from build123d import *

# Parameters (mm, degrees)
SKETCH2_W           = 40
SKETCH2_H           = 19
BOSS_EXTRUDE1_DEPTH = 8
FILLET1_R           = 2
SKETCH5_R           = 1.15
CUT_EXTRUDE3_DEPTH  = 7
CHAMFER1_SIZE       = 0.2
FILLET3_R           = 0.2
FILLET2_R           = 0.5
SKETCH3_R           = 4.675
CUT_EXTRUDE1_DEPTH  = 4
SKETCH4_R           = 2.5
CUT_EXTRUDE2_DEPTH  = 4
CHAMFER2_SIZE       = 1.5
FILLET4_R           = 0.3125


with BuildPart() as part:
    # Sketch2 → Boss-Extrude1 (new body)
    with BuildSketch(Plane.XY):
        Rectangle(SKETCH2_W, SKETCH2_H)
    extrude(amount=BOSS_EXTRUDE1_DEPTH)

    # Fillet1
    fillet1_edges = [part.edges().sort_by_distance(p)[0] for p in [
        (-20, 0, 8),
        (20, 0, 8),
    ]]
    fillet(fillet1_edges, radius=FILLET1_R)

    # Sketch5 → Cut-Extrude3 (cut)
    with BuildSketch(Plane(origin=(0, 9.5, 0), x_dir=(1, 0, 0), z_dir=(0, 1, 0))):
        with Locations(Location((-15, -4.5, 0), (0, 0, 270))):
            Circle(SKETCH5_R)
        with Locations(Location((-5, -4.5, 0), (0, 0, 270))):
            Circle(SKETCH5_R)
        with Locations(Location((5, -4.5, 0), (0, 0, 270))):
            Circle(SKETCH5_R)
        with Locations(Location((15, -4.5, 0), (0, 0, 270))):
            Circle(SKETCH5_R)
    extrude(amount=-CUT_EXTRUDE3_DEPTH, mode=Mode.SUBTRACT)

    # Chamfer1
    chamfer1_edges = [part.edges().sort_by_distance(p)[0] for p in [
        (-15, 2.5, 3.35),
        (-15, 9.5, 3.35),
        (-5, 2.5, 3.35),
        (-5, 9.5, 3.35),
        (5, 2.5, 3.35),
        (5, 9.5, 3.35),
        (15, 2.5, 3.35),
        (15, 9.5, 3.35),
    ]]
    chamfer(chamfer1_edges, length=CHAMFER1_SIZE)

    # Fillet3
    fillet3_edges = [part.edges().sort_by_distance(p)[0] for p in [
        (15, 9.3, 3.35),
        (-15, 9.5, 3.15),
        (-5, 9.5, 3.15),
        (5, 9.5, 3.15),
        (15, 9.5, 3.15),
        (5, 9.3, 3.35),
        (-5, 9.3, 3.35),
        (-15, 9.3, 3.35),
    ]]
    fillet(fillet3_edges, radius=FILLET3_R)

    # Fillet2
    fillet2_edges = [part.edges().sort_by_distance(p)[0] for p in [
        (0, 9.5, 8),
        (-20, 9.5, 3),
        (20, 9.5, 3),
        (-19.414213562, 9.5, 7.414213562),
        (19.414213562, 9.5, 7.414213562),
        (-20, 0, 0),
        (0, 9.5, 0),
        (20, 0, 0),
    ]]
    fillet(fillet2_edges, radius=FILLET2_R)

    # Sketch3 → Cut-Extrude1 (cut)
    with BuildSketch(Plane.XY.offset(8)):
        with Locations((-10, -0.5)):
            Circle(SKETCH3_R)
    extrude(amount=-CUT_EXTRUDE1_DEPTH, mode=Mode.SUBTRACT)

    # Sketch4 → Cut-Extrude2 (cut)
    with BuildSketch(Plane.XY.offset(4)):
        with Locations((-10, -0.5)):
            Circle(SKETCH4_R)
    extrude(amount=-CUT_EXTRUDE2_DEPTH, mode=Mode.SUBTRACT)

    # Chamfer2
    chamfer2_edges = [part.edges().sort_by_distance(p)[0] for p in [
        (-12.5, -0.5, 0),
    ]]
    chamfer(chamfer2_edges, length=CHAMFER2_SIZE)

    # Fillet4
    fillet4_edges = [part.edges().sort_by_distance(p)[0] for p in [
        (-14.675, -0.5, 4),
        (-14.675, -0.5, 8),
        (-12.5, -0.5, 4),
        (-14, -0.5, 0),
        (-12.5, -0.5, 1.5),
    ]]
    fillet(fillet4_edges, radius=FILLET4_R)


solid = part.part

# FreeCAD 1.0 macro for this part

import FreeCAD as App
import Part
import Sketcher

V = App.Vector
Q = App.Units.Quantity


def edges_at(feature, points):
    """Names of the edges that pass closest to the given points."""
    edges = feature.Shape.Edges
    near = lambda p: min(range(len(edges)), key=lambda i: edges[i].distToShape(Part.Vertex(*p))[0])
    return sorted({f"Edge{near(p) + 1}" for p in points})

doc = App.newDocument("Part")
body = doc.addObject("PartDesign::Body", "Body")

sketch1 = doc.addObject("Sketcher::SketchObject", "Sketch")
body.addObject(sketch1)
sketch1.AttachmentSupport = (doc.XY_Plane, [""])
sketch1.MapMode = "FlatFace"
sketch1.addGeometry(Part.LineSegment(V(-20, 10, 0), V(-20, -10, 0)), False)
sketch1.addGeometry(Part.LineSegment(V(-20, -10, 0), V(20, -10, 0)), False)
sketch1.addGeometry(Part.LineSegment(V(20, -10, 0), V(20, 10, 0)), False)
sketch1.addGeometry(Part.LineSegment(V(20, 10, 0), V(-20, 10, 0)), False)
sketch1.addConstraint(Sketcher.Constraint("Coincident", 0, 2, 1, 1))
sketch1.addConstraint(Sketcher.Constraint("Coincident", 1, 2, 2, 1))
sketch1.addConstraint(Sketcher.Constraint("Coincident", 2, 2, 3, 1))
sketch1.addConstraint(Sketcher.Constraint("Coincident", 3, 2, 0, 1))
sketch1.addConstraint(Sketcher.Constraint("Vertical", 0))
sketch1.addConstraint(Sketcher.Constraint("Horizontal", 1))
sketch1.addConstraint(Sketcher.Constraint("Vertical", 2))
sketch1.addConstraint(Sketcher.Constraint("Horizontal", 3))
sketch1.addConstraint(Sketcher.Constraint("Symmetric", 0, 2, 2, 2, -1, 1))
sketch1.addConstraint(Sketcher.Constraint("DistanceX", 1, 1, 1, 2, Q("40 mm")))
sketch1.addConstraint(Sketcher.Constraint("DistanceY", 0, 2, 0, 1, Q("19 mm")))
pad1 = doc.addObject("PartDesign::Pad", "Pad")
body.addObject(pad1)
pad1.Profile = sketch1
pad1.Length = 8
doc.recompute()

fillet = doc.addObject("PartDesign::Fillet", "Fillet")
body.addObject(fillet)
fillet.Base = (pad1, edges_at(pad1, [(-20, 0, 8), (20, 0, 8)]))
fillet.Radius = 2

sketch2 = doc.addObject("Sketcher::SketchObject", "Sketch001")
body.addObject(sketch2)
sketch2.AttachmentSupport = (doc.XZ_Plane, [""])
sketch2.MapMode = "FlatFace"
sketch2.AttachmentOffset = App.Placement(V(0, 0, -9.5), App.Rotation())
sketch2.addGeometry(Part.Circle(V(-15, 4.5, 0), V(0, 0, 1), 1.1), False)
sketch2.addGeometry(Part.Circle(V(-5, 4.5, 0), V(0, 0, 1), 1.1), False)
sketch2.addGeometry(Part.Circle(V(5, 4.5, 0), V(0, 0, 1), 1.1), False)
sketch2.addGeometry(Part.Circle(V(15, 4.5, 0), V(0, 0, 1), 1.1), False)
sketch2.addConstraint(Sketcher.Constraint("Equal", 0, 1))
sketch2.addConstraint(Sketcher.Constraint("Equal", 1, 2))
sketch2.addConstraint(Sketcher.Constraint("Equal", 2, 3))
sketch2.addConstraint(Sketcher.Constraint("Symmetric", 1, 3, 2, 3, -2))
sketch2.addConstraint(Sketcher.Constraint("Symmetric", 0, 3, 3, 3, -2))
sketch2.addConstraint(Sketcher.Constraint("Horizontal", 0, 3, 1, 3))
sketch2.addConstraint(Sketcher.Constraint("Diameter", 0, Q("2.3 mm")))
sketch2.addConstraint(Sketcher.Constraint("DistanceX", 0, 3, -1, 1, Q("15 mm")))
sketch2.addConstraint(Sketcher.Constraint("DistanceX", 1, 3, -1, 1, Q("5 mm")))
sketch2.addConstraint(Sketcher.Constraint("DistanceY", -1, 1, 0, 3, Q("4.5 mm")))
pocket1 = doc.addObject("PartDesign::Pocket", "Pocket")
body.addObject(pocket1)
pocket1.Profile = sketch2
pocket1.Length = 7
pocket1.Reversed = True
doc.recompute()

chamfer = doc.addObject("PartDesign::Chamfer", "Chamfer")
body.addObject(chamfer)
chamfer.Base = (pocket1, edges_at(pocket1, [
    (-15, 2.5, 3.35),
    (-15, 9.5, 3.35),
    (-5, 2.5, 3.35),
    (-5, 9.5, 3.35),
    (5, 2.5, 3.35),
    (5, 9.5, 3.35),
    (15, 2.5, 3.35),
    (15, 9.5, 3.35),
]))
chamfer.Size = 0.2
doc.recompute()

fillet2 = doc.addObject("PartDesign::Fillet", "Fillet001")
body.addObject(fillet2)
fillet2.Base = (chamfer, edges_at(chamfer, [
    (15, 9.3, 3.35),
    (-15, 9.5, 3.15),
    (-5, 9.5, 3.15),
    (5, 9.5, 3.15),
    (15, 9.5, 3.15),
    (5, 9.3, 3.35),
    (-5, 9.3, 3.35),
    (-15, 9.3, 3.35),
]))
fillet2.Radius = 0.2
doc.recompute()

fillet3 = doc.addObject("PartDesign::Fillet", "Fillet002")
body.addObject(fillet3)
fillet3.Base = (fillet2, edges_at(fillet2, [
    (0, 9.5, 8),
    (-20, 9.5, 3),
    (20, 9.5, 3),
    (-19.414, 9.5, 7.414),
    (19.414, 9.5, 7.414),
    (-20, 0, 0),
    (0, 9.5, 0),
    (20, 0, 0),
]))
fillet3.Radius = 0.5

sketch3 = doc.addObject("Sketcher::SketchObject", "Sketch002")
body.addObject(sketch3)
sketch3.AttachmentSupport = (doc.XY_Plane, [""])
sketch3.MapMode = "FlatFace"
sketch3.AttachmentOffset = App.Placement(V(0, 0, 8), App.Rotation())
sketch3.addGeometry(Part.Circle(V(-10, -0.5, 0), V(0, 0, 1), 4.7), False)
sketch3.addConstraint(Sketcher.Constraint("Diameter", 0, Q("9.35 mm")))
sketch3.addConstraint(Sketcher.Constraint("DistanceX", 0, 3, -1, 1, Q("10 mm")))
sketch3.addConstraint(Sketcher.Constraint("DistanceY", 0, 3, -1, 1, Q("0.5 mm")))
pocket2 = doc.addObject("PartDesign::Pocket", "Pocket001")
body.addObject(pocket2)
pocket2.Profile = sketch3
pocket2.Length = 4

sketch4 = doc.addObject("Sketcher::SketchObject", "Sketch003")
body.addObject(sketch4)
sketch4.AttachmentSupport = (doc.XY_Plane, [""])
sketch4.MapMode = "FlatFace"
sketch4.AttachmentOffset = App.Placement(V(0, 0, 4), App.Rotation())
sketch4.addGeometry(Part.Circle(V(-10, -0.5, 0), V(0, 0, 1), 2.5), False)
sketch4.addConstraint(Sketcher.Constraint("Diameter", 0, Q("5 mm")))
sketch4.addConstraint(Sketcher.Constraint("DistanceX", 0, 3, -1, 1, Q("10 mm")))
sketch4.addConstraint(Sketcher.Constraint("DistanceY", 0, 3, -1, 1, Q("0.5 mm")))
pocket3 = doc.addObject("PartDesign::Pocket", "Pocket002")
body.addObject(pocket3)
pocket3.Profile = sketch4
pocket3.Length = 4
doc.recompute()

chamfer2 = doc.addObject("PartDesign::Chamfer", "Chamfer001")
body.addObject(chamfer2)
chamfer2.Base = (pocket3, edges_at(pocket3, [(-12.5, -0.5, 0)]))
chamfer2.Size = 1.5
doc.recompute()

fillet4 = doc.addObject("PartDesign::Fillet", "Fillet003")
body.addObject(fillet4)
fillet4.Base = (chamfer2, edges_at(chamfer2, [
    (-14.675, -0.5, 4),
    (-14.675, -0.5, 8),
    (-12.5, -0.5, 4),
    (-14, -0.5, 0),
    (-12.5, -0.5, 1.5),
]))
fillet4.Radius = 0.3125

doc.recompute()
